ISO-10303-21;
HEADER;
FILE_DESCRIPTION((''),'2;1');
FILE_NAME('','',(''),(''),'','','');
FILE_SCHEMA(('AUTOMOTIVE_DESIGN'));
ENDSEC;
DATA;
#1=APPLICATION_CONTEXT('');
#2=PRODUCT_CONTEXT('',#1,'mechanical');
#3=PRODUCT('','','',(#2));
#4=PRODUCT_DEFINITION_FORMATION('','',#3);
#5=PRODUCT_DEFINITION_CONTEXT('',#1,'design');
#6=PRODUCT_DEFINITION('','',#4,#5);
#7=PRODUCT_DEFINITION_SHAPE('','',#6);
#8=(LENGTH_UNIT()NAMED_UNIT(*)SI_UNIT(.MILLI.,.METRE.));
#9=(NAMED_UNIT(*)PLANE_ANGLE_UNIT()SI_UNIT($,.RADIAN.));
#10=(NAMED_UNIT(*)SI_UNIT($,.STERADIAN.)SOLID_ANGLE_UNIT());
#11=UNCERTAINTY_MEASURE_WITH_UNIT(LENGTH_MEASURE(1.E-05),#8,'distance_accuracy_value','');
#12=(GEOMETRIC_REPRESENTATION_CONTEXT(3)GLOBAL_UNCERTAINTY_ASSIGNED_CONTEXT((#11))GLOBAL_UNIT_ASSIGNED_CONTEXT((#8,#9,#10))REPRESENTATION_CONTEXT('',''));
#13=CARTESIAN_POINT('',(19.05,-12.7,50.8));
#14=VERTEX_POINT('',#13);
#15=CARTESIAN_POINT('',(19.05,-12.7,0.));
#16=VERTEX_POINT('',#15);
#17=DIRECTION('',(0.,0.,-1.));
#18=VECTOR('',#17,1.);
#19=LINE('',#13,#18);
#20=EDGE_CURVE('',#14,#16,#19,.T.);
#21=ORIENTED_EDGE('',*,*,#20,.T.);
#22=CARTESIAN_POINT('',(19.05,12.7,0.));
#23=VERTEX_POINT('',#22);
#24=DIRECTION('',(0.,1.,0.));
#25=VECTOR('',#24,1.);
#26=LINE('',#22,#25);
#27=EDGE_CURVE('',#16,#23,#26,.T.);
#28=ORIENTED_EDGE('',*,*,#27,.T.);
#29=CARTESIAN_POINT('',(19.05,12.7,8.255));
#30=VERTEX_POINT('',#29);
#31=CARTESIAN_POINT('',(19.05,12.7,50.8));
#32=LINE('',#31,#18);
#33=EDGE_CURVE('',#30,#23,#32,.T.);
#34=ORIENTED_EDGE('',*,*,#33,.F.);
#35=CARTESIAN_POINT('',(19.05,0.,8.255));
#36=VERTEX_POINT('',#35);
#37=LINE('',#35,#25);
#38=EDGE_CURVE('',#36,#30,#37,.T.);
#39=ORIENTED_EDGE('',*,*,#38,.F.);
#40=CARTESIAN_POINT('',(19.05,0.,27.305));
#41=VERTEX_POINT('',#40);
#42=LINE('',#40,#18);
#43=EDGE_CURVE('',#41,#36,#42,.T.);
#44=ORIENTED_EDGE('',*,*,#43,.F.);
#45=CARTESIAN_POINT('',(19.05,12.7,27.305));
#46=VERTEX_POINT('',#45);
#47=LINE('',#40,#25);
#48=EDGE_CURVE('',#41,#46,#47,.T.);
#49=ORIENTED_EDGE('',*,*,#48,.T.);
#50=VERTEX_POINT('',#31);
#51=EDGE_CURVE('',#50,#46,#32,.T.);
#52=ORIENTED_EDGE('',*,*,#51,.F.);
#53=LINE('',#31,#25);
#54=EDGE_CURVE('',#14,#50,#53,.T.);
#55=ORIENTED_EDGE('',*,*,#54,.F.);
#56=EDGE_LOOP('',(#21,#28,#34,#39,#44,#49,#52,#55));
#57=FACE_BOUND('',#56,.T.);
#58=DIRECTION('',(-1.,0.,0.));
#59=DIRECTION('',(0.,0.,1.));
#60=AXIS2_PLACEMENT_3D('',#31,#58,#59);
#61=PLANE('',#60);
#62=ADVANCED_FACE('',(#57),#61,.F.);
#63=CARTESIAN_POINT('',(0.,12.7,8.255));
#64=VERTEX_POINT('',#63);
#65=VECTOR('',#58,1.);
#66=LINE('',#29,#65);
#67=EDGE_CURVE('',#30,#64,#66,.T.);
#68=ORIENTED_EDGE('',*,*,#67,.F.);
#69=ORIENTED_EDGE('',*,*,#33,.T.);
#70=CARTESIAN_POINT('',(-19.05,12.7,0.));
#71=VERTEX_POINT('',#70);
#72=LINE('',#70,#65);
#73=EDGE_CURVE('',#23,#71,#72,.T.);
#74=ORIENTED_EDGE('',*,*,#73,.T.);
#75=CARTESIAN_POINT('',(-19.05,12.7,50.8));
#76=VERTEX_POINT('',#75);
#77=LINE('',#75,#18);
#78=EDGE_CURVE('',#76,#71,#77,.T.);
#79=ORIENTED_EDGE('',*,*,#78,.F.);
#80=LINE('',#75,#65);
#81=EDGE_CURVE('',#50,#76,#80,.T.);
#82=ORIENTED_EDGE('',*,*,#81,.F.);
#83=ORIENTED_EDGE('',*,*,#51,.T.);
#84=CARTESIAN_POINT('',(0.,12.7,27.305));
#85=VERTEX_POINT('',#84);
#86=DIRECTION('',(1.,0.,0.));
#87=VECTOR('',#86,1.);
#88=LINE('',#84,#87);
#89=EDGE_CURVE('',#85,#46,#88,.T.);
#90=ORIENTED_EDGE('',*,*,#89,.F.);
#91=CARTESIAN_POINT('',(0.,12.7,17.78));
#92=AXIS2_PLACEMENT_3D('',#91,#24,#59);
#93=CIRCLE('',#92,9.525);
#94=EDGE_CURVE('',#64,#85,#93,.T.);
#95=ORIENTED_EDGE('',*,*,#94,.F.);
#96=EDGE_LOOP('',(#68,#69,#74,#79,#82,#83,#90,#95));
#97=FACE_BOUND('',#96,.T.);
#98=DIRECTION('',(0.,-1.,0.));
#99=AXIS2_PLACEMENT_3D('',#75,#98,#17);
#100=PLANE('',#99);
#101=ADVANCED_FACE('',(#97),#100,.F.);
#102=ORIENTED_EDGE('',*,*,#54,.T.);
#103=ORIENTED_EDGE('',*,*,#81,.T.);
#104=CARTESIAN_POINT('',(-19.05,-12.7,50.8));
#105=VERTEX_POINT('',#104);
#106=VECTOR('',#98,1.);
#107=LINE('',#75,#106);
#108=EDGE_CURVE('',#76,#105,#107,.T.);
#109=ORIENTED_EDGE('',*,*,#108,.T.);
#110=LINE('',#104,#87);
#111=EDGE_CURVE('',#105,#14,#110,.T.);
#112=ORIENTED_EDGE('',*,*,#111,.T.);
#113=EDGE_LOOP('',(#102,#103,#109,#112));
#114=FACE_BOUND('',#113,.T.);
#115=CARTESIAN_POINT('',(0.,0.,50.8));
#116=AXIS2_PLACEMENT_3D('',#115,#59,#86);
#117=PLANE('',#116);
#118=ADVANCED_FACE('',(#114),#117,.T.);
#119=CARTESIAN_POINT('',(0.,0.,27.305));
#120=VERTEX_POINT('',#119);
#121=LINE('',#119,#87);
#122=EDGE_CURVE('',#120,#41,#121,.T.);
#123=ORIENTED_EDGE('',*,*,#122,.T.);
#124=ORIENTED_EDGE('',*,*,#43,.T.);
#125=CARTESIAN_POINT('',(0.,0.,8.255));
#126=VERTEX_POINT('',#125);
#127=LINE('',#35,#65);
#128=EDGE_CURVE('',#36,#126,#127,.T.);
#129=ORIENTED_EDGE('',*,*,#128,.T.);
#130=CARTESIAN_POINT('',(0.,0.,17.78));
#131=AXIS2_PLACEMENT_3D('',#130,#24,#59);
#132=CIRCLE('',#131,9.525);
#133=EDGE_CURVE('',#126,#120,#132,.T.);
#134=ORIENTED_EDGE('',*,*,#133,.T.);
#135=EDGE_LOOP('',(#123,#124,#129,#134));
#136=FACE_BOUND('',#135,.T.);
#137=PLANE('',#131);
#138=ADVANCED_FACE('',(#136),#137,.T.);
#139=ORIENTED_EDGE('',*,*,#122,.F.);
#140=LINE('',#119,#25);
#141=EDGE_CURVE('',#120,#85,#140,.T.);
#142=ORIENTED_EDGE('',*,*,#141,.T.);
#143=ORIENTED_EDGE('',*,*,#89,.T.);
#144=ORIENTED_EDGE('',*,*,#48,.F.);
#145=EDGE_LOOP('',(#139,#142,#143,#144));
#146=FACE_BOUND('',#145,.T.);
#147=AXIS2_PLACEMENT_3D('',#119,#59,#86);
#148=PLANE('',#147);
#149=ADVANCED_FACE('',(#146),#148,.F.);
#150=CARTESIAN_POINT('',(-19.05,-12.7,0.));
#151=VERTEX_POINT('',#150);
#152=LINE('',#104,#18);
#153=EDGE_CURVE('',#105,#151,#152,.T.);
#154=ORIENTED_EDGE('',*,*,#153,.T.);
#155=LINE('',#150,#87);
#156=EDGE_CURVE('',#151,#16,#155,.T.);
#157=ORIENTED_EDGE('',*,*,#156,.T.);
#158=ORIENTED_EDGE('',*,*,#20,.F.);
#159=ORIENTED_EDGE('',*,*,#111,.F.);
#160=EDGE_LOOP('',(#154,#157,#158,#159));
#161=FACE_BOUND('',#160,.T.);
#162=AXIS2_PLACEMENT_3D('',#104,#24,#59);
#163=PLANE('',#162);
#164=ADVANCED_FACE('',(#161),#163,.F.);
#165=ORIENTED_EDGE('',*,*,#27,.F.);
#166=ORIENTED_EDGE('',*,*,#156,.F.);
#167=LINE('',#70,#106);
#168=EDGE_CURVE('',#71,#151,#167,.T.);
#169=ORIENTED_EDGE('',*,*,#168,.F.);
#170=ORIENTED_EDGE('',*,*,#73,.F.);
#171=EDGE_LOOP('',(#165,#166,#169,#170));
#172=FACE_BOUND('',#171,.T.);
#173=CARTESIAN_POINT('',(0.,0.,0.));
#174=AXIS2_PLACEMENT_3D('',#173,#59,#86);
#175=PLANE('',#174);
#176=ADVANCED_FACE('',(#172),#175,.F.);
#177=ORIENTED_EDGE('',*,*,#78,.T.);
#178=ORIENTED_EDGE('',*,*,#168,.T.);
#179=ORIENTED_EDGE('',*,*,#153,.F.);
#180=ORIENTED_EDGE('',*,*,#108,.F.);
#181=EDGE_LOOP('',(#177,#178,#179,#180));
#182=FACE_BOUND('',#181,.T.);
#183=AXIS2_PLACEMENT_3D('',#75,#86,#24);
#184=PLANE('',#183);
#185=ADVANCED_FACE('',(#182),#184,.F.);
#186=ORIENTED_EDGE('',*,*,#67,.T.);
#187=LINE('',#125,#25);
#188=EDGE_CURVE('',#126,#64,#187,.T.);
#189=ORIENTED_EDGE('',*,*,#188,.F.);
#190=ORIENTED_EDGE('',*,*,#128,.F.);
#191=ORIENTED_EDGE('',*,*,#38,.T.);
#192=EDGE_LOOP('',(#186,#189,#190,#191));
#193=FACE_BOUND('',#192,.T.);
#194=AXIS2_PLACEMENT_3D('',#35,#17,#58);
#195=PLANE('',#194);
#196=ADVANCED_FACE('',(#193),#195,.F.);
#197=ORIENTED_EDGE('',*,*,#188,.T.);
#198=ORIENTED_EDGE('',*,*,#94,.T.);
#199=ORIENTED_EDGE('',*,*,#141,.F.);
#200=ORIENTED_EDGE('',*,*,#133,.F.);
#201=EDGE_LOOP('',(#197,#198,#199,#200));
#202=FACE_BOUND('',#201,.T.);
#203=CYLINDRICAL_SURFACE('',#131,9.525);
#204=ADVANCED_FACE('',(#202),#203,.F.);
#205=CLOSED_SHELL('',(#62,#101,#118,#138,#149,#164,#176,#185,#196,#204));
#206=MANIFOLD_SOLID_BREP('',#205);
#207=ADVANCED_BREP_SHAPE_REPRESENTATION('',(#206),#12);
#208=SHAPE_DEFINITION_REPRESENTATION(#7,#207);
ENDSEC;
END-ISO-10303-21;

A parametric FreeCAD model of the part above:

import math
import FreeCAD as App
import Part
import Sketcher
Q = App.Units.Quantity

doc = App.newDocument("Part")
body = doc.addObject("PartDesign::Body", "Body")

sketch1 = body.newObject("Sketcher::SketchObject", "Sketch")
sketch1.AttachmentSupport = (doc.getObject("XY_Plane"), [""])
sketch1.MapMode = "FlatFace"
sketch1.addGeometry(Part.LineSegment(App.Vector(-19, 13, 0), App.Vector(-19, -13, 0)), False)
sketch1.addGeometry(Part.LineSegment(App.Vector(-19, -13, 0), App.Vector(19, -13, 0)), False)
sketch1.addGeometry(Part.LineSegment(App.Vector(19, -13, 0), App.Vector(19, 13, 0)), False)
sketch1.addGeometry(Part.LineSegment(App.Vector(19, 13, 0), App.Vector(-19, 13, 0)), False)
sketch1.addConstraint(Sketcher.Constraint("Coincident", 0, 2, 1, 1))
sketch1.addConstraint(Sketcher.Constraint("Coincident", 1, 2, 2, 1))
sketch1.addConstraint(Sketcher.Constraint("Coincident", 2, 2, 3, 1))
sketch1.addConstraint(Sketcher.Constraint("Coincident", 3, 2, 0, 1))
sketch1.addConstraint(Sketcher.Constraint("Vertical", 0))
sketch1.addConstraint(Sketcher.Constraint("Horizontal", 1))
sketch1.addConstraint(Sketcher.Constraint("Vertical", 2))
sketch1.addConstraint(Sketcher.Constraint("Horizontal", 3))
sketch1.addConstraint(Sketcher.Constraint("Symmetric", 0, 2, 2, 2, -1, 1))
sketch1.addConstraint(Sketcher.Constraint("DistanceY", 0, 2, 0, 1, Q("1 in")))
sketch1.addConstraint(Sketcher.Constraint("DistanceX", 1, 1, 1, 2, Q("1.5 in")))
pad1 = body.newObject("PartDesign::Pad", "Pad")
pad1.Profile = sketch1
pad1.Length = Q("2 in")

sketch2 = body.newObject("Sketcher::SketchObject", "Sketch001")
sketch2.AttachmentSupport = (doc.getObject("XZ_Plane"), [""])
sketch2.MapMode = "FlatFace"
sketch2.AttachmentOffset = App.Placement(App.Vector(0, 0, -0.5 * 25.4), App.Rotation())
sketch2.addGeometry(Part.LineSegment(App.Vector(19, 8, 0), App.Vector(0, 8, 0)), False)
sketch2.addGeometry(Part.ArcOfCircle(Part.Circle(App.Vector(0, 18, 0), App.Vector(0, 0, 1), 10), math.radians(90), math.radians(270)), False)
sketch2.addGeometry(Part.LineSegment(App.Vector(0, 27, 0), App.Vector(19, 27, 0)), False)
sketch2.addGeometry(Part.LineSegment(App.Vector(19, 27, 0), App.Vector(19, 8, 0)), False)
sketch2.addConstraint(Sketcher.Constraint("Tangent", 0, 2, 1, 2))
sketch2.addConstraint(Sketcher.Constraint("Tangent", 1, 1, 2, 1))
sketch2.addConstraint(Sketcher.Constraint("Coincident", 2, 2, 3, 1))
sketch2.addConstraint(Sketcher.Constraint("Coincident", 3, 2, 0, 1))
sketch2.addConstraint(Sketcher.Constraint("Horizontal", 0))
sketch2.addConstraint(Sketcher.Constraint("Horizontal", 2))
sketch2.addConstraint(Sketcher.Constraint("Vertical", 3))
sketch2.addConstraint(Sketcher.Constraint("PointOnObject", 1, 3, -2))
sketch2.addConstraint(Sketcher.Constraint("Equal", 2, 3))
sketch2.addConstraint(Sketcher.Constraint("Radius", 1, Q("0.375 in")))
sketch2.addConstraint(Sketcher.Constraint("DistanceY", -1, 1, 1, 3, Q("0.7 in")))
pocket1 = body.newObject("PartDesign::Pocket", "Pocket")
pocket1.Profile = sketch2
pocket1.Length = Q("0.5 in")
pocket1.Reversed = True

doc.recompute()
